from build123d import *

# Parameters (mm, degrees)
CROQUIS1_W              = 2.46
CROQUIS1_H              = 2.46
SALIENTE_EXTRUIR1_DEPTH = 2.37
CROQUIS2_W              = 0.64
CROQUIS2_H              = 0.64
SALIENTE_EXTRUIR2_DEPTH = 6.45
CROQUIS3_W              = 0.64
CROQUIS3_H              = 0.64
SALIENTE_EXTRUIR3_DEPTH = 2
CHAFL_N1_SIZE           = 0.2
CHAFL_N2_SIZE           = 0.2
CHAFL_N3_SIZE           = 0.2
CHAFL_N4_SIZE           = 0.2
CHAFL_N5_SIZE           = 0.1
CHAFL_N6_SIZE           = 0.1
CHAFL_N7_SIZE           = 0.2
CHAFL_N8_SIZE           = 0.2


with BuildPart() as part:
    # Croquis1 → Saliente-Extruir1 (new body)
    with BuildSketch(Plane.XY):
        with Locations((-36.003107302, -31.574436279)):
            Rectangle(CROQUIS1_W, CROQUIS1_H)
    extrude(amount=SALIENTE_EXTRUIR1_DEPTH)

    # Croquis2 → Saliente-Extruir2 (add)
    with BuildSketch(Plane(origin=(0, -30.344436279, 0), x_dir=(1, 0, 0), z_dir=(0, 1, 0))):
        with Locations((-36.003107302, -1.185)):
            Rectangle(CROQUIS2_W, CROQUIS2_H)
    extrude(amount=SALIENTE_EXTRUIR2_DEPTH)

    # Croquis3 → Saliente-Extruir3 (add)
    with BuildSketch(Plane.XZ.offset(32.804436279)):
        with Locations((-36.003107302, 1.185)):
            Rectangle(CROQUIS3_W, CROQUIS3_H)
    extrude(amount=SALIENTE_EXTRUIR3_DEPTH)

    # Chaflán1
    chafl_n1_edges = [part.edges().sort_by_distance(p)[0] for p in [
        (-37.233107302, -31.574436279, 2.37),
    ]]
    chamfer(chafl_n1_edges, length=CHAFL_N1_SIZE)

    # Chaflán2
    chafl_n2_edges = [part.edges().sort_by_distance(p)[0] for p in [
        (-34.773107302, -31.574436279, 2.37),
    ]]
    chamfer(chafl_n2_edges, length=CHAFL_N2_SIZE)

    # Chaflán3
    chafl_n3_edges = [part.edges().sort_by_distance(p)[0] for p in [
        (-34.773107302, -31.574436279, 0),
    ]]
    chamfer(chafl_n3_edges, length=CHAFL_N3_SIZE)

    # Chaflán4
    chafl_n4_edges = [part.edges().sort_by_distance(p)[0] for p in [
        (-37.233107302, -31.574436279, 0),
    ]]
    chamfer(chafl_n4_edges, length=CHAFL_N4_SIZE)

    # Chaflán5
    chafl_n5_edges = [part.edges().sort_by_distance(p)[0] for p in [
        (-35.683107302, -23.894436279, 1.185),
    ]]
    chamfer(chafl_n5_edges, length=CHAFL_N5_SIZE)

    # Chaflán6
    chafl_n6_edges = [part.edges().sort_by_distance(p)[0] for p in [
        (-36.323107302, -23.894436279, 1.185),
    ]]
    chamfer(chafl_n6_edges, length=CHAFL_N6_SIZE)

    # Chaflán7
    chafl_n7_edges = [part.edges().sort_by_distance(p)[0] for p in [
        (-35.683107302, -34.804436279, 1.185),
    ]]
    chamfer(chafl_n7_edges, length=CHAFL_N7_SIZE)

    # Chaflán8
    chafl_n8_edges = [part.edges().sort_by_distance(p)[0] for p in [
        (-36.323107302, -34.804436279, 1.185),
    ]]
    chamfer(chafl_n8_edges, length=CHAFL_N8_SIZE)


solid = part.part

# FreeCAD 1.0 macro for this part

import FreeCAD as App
import Part
import Sketcher

V = App.Vector
Q = App.Units.Quantity


def edges_at(feature, points):
    """Names of the edges that pass closest to the given points."""
    edges = feature.Shape.Edges
    near = lambda p: min(range(len(edges)), key=lambda i: edges[i].distToShape(Part.Vertex(*p))[0])
    return sorted({f"Edge{near(p) + 1}" for p in points})

doc = App.newDocument("Part")
body = doc.addObject("PartDesign::Body", "Body")

sketch1 = doc.addObject("Sketcher::SketchObject", "Sketch")
body.addObject(sketch1)
sketch1.AttachmentSupport = (doc.XY_Plane, [""])
sketch1.MapMode = "FlatFace"
sketch1.addGeometry([
    Part.LineSegment(V(-37.2, -30.3, 0), V(-37.2, -32.8, 0)),
    Part.LineSegment(V(-37.2, -32.8, 0), V(-34.8, -32.8, 0)),
    Part.LineSegment(V(-34.8, -32.8, 0), V(-34.8, -30.3, 0)),
    Part.LineSegment(V(-34.8, -30.3, 0), V(-37.2, -30.3, 0)),
], False)
sketch1.addConstraint([
    Sketcher.Constraint("Coincident", 0, 2, 1, 1),
    Sketcher.Constraint("Coincident", 1, 2, 2, 1),
    Sketcher.Constraint("Coincident", 2, 2, 3, 1),
    Sketcher.Constraint("Coincident", 3, 2, 0, 1),
    Sketcher.Constraint("Vertical", 0),
    Sketcher.Constraint("Horizontal", 1),
    Sketcher.Constraint("Vertical", 2),
    Sketcher.Constraint("Horizontal", 3),
    Sketcher.Constraint("Equal", 3, 0),
    Sketcher.Constraint("DistanceX", 1, 1, 1, 2, Q("2.46 mm")),
    Sketcher.Constraint("DistanceX", 0, 2, -1, 1, Q("37.233107 mm")),
    Sketcher.Constraint("DistanceY", 0, 2, -1, 1, Q("32.804436 mm")),
])
pad1 = doc.addObject("PartDesign::Pad", "Pad")
body.addObject(pad1)
pad1.Profile = sketch1
pad1.Length = 2.37

sketch2 = doc.addObject("Sketcher::SketchObject", "Sketch001")
body.addObject(sketch2)
sketch2.AttachmentSupport = (doc.XZ_Plane, [""])
sketch2.MapMode = "FlatFace"
sketch2.AttachmentOffset = App.Placement(V(0, 0, 30.344436), App.Rotation())
sketch2.addGeometry([
    Part.LineSegment(V(-36.3, 0.9, 0), V(-36.3, 1.5, 0)),
    Part.LineSegment(V(-36.3, 1.5, 0), V(-35.7, 1.5, 0)),
    Part.LineSegment(V(-35.7, 1.5, 0), V(-35.7, 0.9, 0)),
    Part.LineSegment(V(-35.7, 0.9, 0), V(-36.3, 0.9, 0)),
], False)
sketch2.addConstraint([
    Sketcher.Constraint("Coincident", 0, 2, 1, 1),
    Sketcher.Constraint("Coincident", 1, 2, 2, 1),
    Sketcher.Constraint("Coincident", 2, 2, 3, 1),
    Sketcher.Constraint("Coincident", 3, 2, 0, 1),
    Sketcher.Constraint("Vertical", 0),
    Sketcher.Constraint("Horizontal", 1),
    Sketcher.Constraint("Vertical", 2),
    Sketcher.Constraint("Horizontal", 3),
    Sketcher.Constraint("Equal", 3, 0),
    Sketcher.Constraint("DistanceX", 1, 1, 1, 2, Q("0.64 mm")),
    Sketcher.Constraint("DistanceY", -1, 1, 0, 2, Q("1.505 mm")),
    Sketcher.Constraint("DistanceX", 0, 2, -1, 1, Q("36.323107 mm")),
])
pad2 = doc.addObject("PartDesign::Pad", "Pad001")
body.addObject(pad2)
pad2.Profile = sketch2
pad2.Length = 6.45
pad2.Reversed = True

sketch3 = doc.addObject("Sketcher::SketchObject", "Sketch002")
body.addObject(sketch3)
sketch3.AttachmentSupport = (doc.XZ_Plane, [""])
sketch3.MapMode = "FlatFace"
sketch3.AttachmentOffset = App.Placement(V(0, 0, 32.804436), App.Rotation())
sketch3.addGeometry([
    Part.LineSegment(V(-36.3, 1.5, 0), V(-36.3, 0.9, 0)),
    Part.LineSegment(V(-36.3, 0.9, 0), V(-35.7, 0.9, 0)),
    Part.LineSegment(V(-35.7, 0.9, 0), V(-35.7, 1.5, 0)),
    Part.LineSegment(V(-35.7, 1.5, 0), V(-36.3, 1.5, 0)),
], False)
sketch3.addConstraint([
    Sketcher.Constraint("Coincident", 0, 2, 1, 1),
    Sketcher.Constraint("Coincident", 1, 2, 2, 1),
    Sketcher.Constraint("Coincident", 2, 2, 3, 1),
    Sketcher.Constraint("Coincident", 3, 2, 0, 1),
    Sketcher.Constraint("Vertical", 0),
    Sketcher.Constraint("Horizontal", 1),
    Sketcher.Constraint("Vertical", 2),
    Sketcher.Constraint("Horizontal", 3),
    Sketcher.Constraint("Equal", 3, 0),
    Sketcher.Constraint("DistanceX", 1, 1, 1, 2, Q("0.64 mm")),
    Sketcher.Constraint("DistanceY", -1, 1, 0, 2, Q("0.865 mm")),
    Sketcher.Constraint("DistanceX", 0, 2, -1, 1, Q("36.323107 mm")),
])
pad3 = doc.addObject("PartDesign::Pad", "Pad002")
body.addObject(pad3)
pad3.Profile = sketch3
pad3.Length = 2
doc.recompute()

chamfer = doc.addObject("PartDesign::Chamfer", "Chamfer")
body.addObject(chamfer)
chamfer.Base = (pad3, edges_at(pad3, [(-37.233, -31.574, 2.37)]))
chamfer.Size = 0.2
doc.recompute()

chamfer2 = doc.addObject("PartDesign::Chamfer", "Chamfer001")
body.addObject(chamfer2)
chamfer2.Base = (chamfer, edges_at(chamfer, [(-34.773, -31.574, 2.37)]))
chamfer2.Size = 0.2
doc.recompute()

chamfer3 = doc.addObject("PartDesign::Chamfer", "Chamfer002")
body.addObject(chamfer3)
chamfer3.Base = (chamfer2, edges_at(chamfer2, [(-34.773, -31.574, 0)]))
chamfer3.Size = 0.2
doc.recompute()

chamfer4 = doc.addObject("PartDesign::Chamfer", "Chamfer003")
body.addObject(chamfer4)
chamfer4.Base = (chamfer3, edges_at(chamfer3, [(-37.233, -31.574, 0)]))
chamfer4.Size = 0.2
doc.recompute()

chamfer5 = doc.addObject("PartDesign::Chamfer", "Chamfer004")
body.addObject(chamfer5)
chamfer5.Base = (chamfer4, edges_at(chamfer4, [(-35.683, -23.894, 1.185)]))
chamfer5.Size = 0.1
doc.recompute()

chamfer6 = doc.addObject("PartDesign::Chamfer", "Chamfer005")
body.addObject(chamfer6)
chamfer6.Base = (chamfer5, edges_at(chamfer5, [(-36.323, -23.894, 1.185)]))
chamfer6.Size = 0.1
doc.recompute()

chamfer7 = doc.addObject("PartDesign::Chamfer", "Chamfer006")
body.addObject(chamfer7)
chamfer7.Base = (chamfer6, edges_at(chamfer6, [(-35.683, -34.804, 1.185)]))
chamfer7.Size = 0.2
doc.recompute()

chamfer8 = doc.addObject("PartDesign::Chamfer", "Chamfer007")
body.addObject(chamfer8)
chamfer8.Base = (chamfer7, edges_at(chamfer7, [(-36.323, -34.804, 1.185)]))
chamfer8.Size = 0.2

doc.recompute()
